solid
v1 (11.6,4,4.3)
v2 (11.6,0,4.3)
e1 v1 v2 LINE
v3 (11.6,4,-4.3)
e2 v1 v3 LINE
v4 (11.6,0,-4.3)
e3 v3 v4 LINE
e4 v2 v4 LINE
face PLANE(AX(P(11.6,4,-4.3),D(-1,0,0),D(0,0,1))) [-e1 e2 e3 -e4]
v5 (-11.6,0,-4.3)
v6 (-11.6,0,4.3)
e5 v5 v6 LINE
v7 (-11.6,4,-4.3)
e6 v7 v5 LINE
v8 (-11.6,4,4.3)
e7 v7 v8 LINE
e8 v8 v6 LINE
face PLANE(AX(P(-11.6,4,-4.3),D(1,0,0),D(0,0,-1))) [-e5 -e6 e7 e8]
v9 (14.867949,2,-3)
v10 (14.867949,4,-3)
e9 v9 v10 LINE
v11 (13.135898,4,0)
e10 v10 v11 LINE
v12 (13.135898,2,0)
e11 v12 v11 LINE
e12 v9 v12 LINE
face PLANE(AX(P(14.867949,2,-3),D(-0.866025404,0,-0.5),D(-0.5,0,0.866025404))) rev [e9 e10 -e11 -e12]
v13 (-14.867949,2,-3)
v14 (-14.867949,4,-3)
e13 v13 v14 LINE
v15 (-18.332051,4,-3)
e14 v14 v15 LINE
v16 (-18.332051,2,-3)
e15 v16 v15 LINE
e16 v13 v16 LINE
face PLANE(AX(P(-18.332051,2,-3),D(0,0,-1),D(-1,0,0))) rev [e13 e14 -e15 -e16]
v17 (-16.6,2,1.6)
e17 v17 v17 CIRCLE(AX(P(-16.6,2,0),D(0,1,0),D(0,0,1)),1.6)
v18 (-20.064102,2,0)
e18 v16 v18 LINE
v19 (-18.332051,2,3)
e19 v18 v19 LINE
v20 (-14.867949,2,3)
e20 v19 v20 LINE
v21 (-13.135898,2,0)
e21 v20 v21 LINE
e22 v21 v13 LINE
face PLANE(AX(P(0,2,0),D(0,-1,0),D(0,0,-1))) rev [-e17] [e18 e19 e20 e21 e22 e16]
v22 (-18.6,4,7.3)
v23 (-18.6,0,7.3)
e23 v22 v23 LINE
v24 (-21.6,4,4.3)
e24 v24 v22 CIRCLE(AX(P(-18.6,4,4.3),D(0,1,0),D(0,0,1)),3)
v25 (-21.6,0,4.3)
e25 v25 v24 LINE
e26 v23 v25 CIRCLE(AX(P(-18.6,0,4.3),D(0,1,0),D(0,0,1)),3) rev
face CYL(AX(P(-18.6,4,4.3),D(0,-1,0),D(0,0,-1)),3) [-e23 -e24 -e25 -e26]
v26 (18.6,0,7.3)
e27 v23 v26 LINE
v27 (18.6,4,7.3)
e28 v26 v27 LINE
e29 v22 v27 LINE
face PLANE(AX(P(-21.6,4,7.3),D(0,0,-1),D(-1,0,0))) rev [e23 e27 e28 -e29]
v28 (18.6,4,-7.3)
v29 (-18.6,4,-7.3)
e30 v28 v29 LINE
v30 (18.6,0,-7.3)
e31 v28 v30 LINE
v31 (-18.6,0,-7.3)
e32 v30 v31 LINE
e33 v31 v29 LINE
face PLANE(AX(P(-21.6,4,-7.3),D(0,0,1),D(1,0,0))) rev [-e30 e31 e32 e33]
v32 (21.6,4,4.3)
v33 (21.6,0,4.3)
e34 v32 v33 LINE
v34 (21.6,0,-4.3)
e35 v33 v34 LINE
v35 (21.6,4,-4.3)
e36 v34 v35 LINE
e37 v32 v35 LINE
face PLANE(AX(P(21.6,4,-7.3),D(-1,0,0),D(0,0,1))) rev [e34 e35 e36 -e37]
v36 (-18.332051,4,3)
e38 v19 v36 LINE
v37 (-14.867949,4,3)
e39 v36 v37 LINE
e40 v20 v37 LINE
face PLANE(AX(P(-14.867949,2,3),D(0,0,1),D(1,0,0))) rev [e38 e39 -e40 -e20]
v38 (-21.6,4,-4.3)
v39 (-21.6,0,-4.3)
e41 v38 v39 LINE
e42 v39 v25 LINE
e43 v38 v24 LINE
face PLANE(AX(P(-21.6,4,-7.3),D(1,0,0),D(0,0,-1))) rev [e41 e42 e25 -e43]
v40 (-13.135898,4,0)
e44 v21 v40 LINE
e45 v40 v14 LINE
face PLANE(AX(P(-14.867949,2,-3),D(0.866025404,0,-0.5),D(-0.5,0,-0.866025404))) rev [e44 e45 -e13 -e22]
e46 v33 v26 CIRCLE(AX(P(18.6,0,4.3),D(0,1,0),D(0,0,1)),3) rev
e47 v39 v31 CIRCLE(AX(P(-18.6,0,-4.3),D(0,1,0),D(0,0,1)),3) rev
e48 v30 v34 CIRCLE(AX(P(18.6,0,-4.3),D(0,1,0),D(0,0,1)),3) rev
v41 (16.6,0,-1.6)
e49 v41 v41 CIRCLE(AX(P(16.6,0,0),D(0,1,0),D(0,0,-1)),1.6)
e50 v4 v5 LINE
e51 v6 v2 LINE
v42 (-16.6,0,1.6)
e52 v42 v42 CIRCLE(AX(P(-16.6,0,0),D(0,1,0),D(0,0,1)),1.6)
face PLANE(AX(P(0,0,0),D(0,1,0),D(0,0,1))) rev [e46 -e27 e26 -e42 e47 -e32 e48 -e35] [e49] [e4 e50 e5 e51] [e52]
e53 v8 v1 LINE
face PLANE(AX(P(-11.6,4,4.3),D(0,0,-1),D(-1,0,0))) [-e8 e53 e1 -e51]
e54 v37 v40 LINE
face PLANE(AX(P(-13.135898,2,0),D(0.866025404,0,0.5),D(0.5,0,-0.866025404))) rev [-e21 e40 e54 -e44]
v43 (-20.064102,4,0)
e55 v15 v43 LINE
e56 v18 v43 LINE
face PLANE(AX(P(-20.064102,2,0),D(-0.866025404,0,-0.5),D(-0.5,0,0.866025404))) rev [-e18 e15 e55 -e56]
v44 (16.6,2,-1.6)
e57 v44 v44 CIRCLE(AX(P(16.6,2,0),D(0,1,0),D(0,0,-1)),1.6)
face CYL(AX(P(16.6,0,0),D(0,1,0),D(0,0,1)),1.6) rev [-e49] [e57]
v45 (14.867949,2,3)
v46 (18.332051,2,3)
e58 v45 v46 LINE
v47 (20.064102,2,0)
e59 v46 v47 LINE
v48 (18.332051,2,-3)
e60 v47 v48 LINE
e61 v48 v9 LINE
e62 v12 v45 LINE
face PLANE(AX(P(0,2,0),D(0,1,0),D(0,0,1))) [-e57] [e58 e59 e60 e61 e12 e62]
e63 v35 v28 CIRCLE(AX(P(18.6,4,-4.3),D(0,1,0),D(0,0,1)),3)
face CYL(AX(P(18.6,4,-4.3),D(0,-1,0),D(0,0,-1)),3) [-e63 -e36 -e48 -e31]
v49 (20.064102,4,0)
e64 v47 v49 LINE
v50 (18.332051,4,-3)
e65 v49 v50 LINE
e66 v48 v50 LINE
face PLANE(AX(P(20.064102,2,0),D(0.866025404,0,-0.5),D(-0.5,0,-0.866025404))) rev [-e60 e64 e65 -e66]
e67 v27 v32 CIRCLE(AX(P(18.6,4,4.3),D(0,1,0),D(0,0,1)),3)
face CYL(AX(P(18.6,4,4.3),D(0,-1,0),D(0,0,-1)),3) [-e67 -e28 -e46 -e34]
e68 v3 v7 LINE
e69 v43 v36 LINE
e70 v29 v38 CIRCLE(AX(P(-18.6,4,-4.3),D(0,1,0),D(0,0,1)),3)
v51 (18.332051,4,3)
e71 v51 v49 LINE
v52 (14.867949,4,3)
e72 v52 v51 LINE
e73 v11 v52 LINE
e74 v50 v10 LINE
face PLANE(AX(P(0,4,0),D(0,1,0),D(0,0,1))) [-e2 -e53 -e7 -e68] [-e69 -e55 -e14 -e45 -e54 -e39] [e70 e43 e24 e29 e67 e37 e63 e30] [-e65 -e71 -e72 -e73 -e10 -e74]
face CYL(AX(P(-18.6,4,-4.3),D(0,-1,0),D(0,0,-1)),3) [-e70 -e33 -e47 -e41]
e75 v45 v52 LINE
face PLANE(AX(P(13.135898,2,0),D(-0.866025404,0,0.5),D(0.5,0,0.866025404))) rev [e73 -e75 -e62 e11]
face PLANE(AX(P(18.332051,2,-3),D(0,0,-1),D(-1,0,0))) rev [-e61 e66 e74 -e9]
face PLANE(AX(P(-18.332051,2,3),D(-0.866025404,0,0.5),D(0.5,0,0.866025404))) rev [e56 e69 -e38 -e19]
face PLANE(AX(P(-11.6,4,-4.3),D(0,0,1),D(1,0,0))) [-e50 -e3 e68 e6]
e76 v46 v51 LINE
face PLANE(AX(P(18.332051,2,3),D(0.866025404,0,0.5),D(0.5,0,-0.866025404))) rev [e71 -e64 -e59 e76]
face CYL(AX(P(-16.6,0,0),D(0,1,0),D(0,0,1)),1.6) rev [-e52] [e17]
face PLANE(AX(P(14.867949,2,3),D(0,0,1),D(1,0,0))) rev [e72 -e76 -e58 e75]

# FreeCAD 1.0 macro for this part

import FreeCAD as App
import Part
import Sketcher

V = App.Vector
Q = App.Units.Quantity


def edges_at(feature, points):
    """Names of the edges that pass closest to the given points."""
    edges = feature.Shape.Edges
    near = lambda p: min(range(len(edges)), key=lambda i: edges[i].distToShape(Part.Vertex(*p))[0])
    return sorted({f"Edge{near(p) + 1}" for p in points})


def add_polygon(sketch, points):
    """Adds a closed chain of lines whose ends are joined by coincident constraints."""
    first, n = sketch.GeometryCount, len(points)
    for a, b in zip(points, points[1:] + points[:1]):
        sketch.addGeometry(Part.LineSegment(App.Vector(*a, 0), App.Vector(*b, 0)), False)
    for i in range(n):
        sketch.addConstraint(Sketcher.Constraint("Coincident", first + i, 2, first + (i + 1) % n, 1))

doc = App.newDocument("Part")
params = doc.addObject("Spreadsheet::Sheet", "Params")
for row, (alias, value) in enumerate([
    ("sketch1_width", "43.2 mm"),
    ("sketch1_width2", "23.2 mm"),
    ("sketch1_height", "14.6 mm"),
    ("sketch1_height2", "8.6 mm"),
    ("pad1_length", "4 mm"),
    ("pocket1_length", "2 mm"),
    ("sketch3_diameter", "3.2 mm"),
    ("fillet_radius", "3 mm"),
], start=1):
    params.set(f"A{row}", alias)
    params.set(f"B{row}", "=" + value)
    params.setAlias(f"B{row}", alias)

body = doc.addObject("PartDesign::Body", "Body")

# Sketch on XZ plane
sketch1 = doc.addObject("Sketcher::SketchObject", "Sketch")
body.addObject(sketch1)
sketch1.AttachmentSupport = (doc.XZ_Plane, [""])
sketch1.MapMode = "FlatFace"
add_polygon(sketch1, [(-22, -7), (-22, 7), (22, 7), (22, -7)])  # lines 0-3
add_polygon(sketch1, [(12, 4), (-12, 4), (-12, -4), (12, -4)])  # lines 4-7
sketch1.addConstraint(Sketcher.Constraint("Vertical", 0))
sketch1.addConstraint(Sketcher.Constraint("Horizontal", 1))
sketch1.addConstraint(Sketcher.Constraint("Vertical", 2))
sketch1.addConstraint(Sketcher.Constraint("Horizontal", 3))
sketch1.addConstraint(Sketcher.Constraint("Horizontal", 4))
sketch1.addConstraint(Sketcher.Constraint("Vertical", 5))
sketch1.addConstraint(Sketcher.Constraint("Horizontal", 6))
sketch1.addConstraint(Sketcher.Constraint("Vertical", 7))
sketch1.addConstraint(Sketcher.Constraint("Symmetric", 0, 2, 2, 2, -1, 1))
sketch1.addConstraint(Sketcher.Constraint("Symmetric", 4, 2, 6, 2, -1, 1))
sketch1.addConstraint(Sketcher.Constraint("DistanceX", 1, 1, 1, 2, Q("43.2 mm")))
sketch1.addConstraint(Sketcher.Constraint("DistanceX", 4, 2, 4, 1, Q("23.2 mm")))
sketch1.addConstraint(Sketcher.Constraint("DistanceY", 0, 1, 0, 2, Q("14.6 mm")))
sketch1.addConstraint(Sketcher.Constraint("DistanceY", 5, 2, 5, 1, Q("8.6 mm")))
sketch1.setExpression("Constraints[18]", "Params.sketch1_width")
sketch1.setExpression("Constraints[19]", "Params.sketch1_width2")
sketch1.setExpression("Constraints[20]", "Params.sketch1_height")
sketch1.setExpression("Constraints[21]", "Params.sketch1_height2")
pad1 = doc.addObject("PartDesign::Pad", "Pad")
body.addObject(pad1)
pad1.Profile = sketch1
pad1.setExpression("Length", "Params.pad1_length")
pad1.Reversed = True

# Sketch on XZ plane
sketch2 = doc.addObject("Sketcher::SketchObject", "Sketch001")
body.addObject(sketch2)
sketch2.AttachmentSupport = (doc.XZ_Plane, [""])
sketch2.MapMode = "FlatFace"
sketch2.AttachmentOffset = App.Placement(V(0, 0, -4), App.Rotation())
add_polygon(sketch2, [(18.3, 3), (20.1, 0), (18.3, -3), (14.9, -3), (13.1, 0), (14.9, 3)])  # lines 0-5
add_polygon(sketch2, [(-18.3, 3), (-14.9, 3), (-13.1, 0), (-14.9, -3), (-18.3, -3), (-20.1, 0)])  # lines 6-11
sketch2.addConstraint(Sketcher.Constraint("Horizontal", 2))
sketch2.addConstraint(Sketcher.Constraint("Horizontal", 5))
sketch2.addConstraint(Sketcher.Constraint("Horizontal", 6))
sketch2.addConstraint(Sketcher.Constraint("Horizontal", 9))
sketch2.addConstraint(Sketcher.Constraint("Symmetric", 2, 2, 6, 2, -1, 1))
sketch2.addConstraint(Sketcher.Constraint("Symmetric", 3, 2, 7, 2, -1, 1))
sketch2.addConstraint(Sketcher.Constraint("Symmetric", 4, 2, 8, 2, -1, 1))
sketch2.addConstraint(Sketcher.Constraint("Symmetric", 0, 2, 10, 2, -1, 1))
sketch2.addConstraint(Sketcher.Constraint("Symmetric", 4, 2, 6, 2, -2))
sketch2.addConstraint(Sketcher.Constraint("PointOnObject", 0, 2, -1))
sketch2.addConstraint(Sketcher.Constraint("PointOnObject", 3, 2, -1))
sketch2.addConstraint(Sketcher.Constraint("Parallel", 0, 3))
sketch2.addConstraint(Sketcher.Constraint("Parallel", 1, 4))
sketch2.addConstraint(Sketcher.Constraint("Parallel", 7, 10))
sketch2.addConstraint(Sketcher.Constraint("Parallel", 8, 11))
sketch2.addConstraint(Sketcher.Constraint("Angle", 0, Q("-60 deg")))
sketch2.addConstraint(Sketcher.Constraint("DistanceY", 1, 2, -1, 1, Q("3 mm")))
sketch2.addConstraint(Sketcher.Constraint("DistanceX", 6, 2, 5, 2, Q("33.2 mm")))
sketch2.addConstraint(Sketcher.Constraint("DistanceX", 2, 2, 2, 1, Q("3.464102 mm")))
pocket1 = doc.addObject("PartDesign::Pocket", "Pocket")
body.addObject(pocket1)
pocket1.Profile = sketch2
pocket1.setExpression("Length", "Params.pocket1_length")
pocket1.Reversed = True

# Sketch on XZ plane
sketch3 = doc.addObject("Sketcher::SketchObject", "Sketch002")
body.addObject(sketch3)
sketch3.AttachmentSupport = (doc.XZ_Plane, [""])
sketch3.MapMode = "FlatFace"
sketch3.AttachmentOffset = App.Placement(V(0, 0, -2), App.Rotation())
sketch3.addGeometry(Part.Circle(V(-16.6, 0, 0), V(0, 0, 1), 1.6), False)
sketch3.addGeometry(Part.Circle(V(16.6, 0, 0), V(0, 0, 1), 1.6), False)
sketch3.addConstraint(Sketcher.Constraint("Equal", 0, 1))
sketch3.addConstraint(Sketcher.Constraint("Symmetric", 0, 3, 1, 3, -1, 1))
sketch3.addConstraint(Sketcher.Constraint("PointOnObject", 0, 3, -1))
sketch3.addConstraint(Sketcher.Constraint("Diameter", 0, Q("3.2 mm")))
sketch3.addConstraint(Sketcher.Constraint("DistanceX", 0, 3, -1, 1, Q("16.6 mm")))
sketch3.setExpression("Constraints[3]", "Params.sketch3_diameter")
pocket2 = doc.addObject("PartDesign::Pocket", "Pocket001")
body.addObject(pocket2)
pocket2.Profile = sketch3
pocket2.Type = "ThroughAll"
pocket2.Reversed = True
doc.recompute()

fillet = doc.addObject("PartDesign::Fillet", "Fillet")
body.addObject(fillet)
fillet.Base = (pocket2, edges_at(pocket2, [
    (-21.6, 2, -7.3),
    (21.6, 2, -7.3),
    (21.6, 2, 7.3),
    (-21.6, 2, 7.3),
]))
fillet.setExpression("Radius", "Params.fillet_radius")

doc.recompute()
